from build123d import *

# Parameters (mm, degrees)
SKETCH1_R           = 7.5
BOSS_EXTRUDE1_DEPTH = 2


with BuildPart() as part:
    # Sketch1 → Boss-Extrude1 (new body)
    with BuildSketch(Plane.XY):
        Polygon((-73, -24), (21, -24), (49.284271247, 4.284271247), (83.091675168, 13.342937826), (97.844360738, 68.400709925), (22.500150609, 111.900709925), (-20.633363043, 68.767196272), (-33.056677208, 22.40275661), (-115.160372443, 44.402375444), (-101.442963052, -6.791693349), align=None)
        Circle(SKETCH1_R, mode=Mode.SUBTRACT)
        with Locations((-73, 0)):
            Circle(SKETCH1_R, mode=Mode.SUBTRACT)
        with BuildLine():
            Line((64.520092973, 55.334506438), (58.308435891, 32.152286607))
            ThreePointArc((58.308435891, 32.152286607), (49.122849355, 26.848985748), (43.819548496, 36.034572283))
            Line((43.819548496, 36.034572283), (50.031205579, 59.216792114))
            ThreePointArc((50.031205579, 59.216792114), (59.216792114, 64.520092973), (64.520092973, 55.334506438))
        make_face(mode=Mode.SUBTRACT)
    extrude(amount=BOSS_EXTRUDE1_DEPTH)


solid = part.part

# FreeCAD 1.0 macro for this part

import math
import FreeCAD as App
import Part
import Sketcher

V = App.Vector
Q = App.Units.Quantity


def add_polygon(sketch, points):
    """Adds a closed chain of lines whose ends are joined by coincident constraints."""
    first, n = sketch.GeometryCount, len(points)
    for a, b in zip(points, points[1:] + points[:1]):
        sketch.addGeometry(Part.LineSegment(App.Vector(*a, 0), App.Vector(*b, 0)), False)
    for i in range(n):
        sketch.addConstraint(Sketcher.Constraint("Coincident", first + i, 2, first + (i + 1) % n, 1))

doc = App.newDocument("Part")
body = doc.addObject("PartDesign::Body", "Body")

sketch1 = body.newObject("Sketcher::SketchObject", "Sketch")
sketch1.AttachmentSupport = (doc.getObject("XY_Plane"), [""])
sketch1.MapMode = "FlatFace"
add_polygon(sketch1, [(-73, -24), (21, -24), (49, 4), (83, 13), (98, 68), (23, 112), (-21, 69), (-33, 22), (-115, 44), (-101, -7)])
sketch1.addGeometry(Part.Circle(V(-73, 0, 0), V(0, 0, 1), 8), False)
sketch1.addGeometry(Part.Circle(V(0, 0, 0), V(0, 0, 1), 8), False)
sketch1.addGeometry(Part.ArcOfCircle(Part.Circle(V(57, 57, 0), V(0, 0, 1), 8), math.radians(-15), math.radians(165)), False)
sketch1.addGeometry(Part.LineSegment(V(65, 55, 0), V(58, 32, 0)), False)
sketch1.addGeometry(Part.ArcOfCircle(Part.Circle(V(51, 34, 0), V(0, 0, 1), 8), math.radians(165), math.radians(345)), False)
sketch1.addGeometry(Part.LineSegment(V(44, 36, 0), V(50, 59, 0)), False)
sketch1.addConstraint(Sketcher.Constraint("Tangent", 12, 1, 13, 1))
sketch1.addConstraint(Sketcher.Constraint("Tangent", 13, 2, 14, 2))
sketch1.addConstraint(Sketcher.Constraint("Tangent", 14, 1, 15, 1))
sketch1.addConstraint(Sketcher.Constraint("Tangent", 15, 2, 12, 2))
sketch1.addConstraint(Sketcher.Constraint("Horizontal", 0))
sketch1.addConstraint(Sketcher.Constraint("Coincident", 11, 3, -1, 1))
sketch1.addConstraint(Sketcher.Constraint("Equal", 10, 11))
sketch1.addConstraint(Sketcher.Constraint("Equal", 11, 12))
sketch1.addConstraint(Sketcher.Constraint("Equal", 12, 14))
sketch1.addConstraint(Sketcher.Constraint("PointOnObject", 10, 3, -1))
sketch1.addConstraint(Sketcher.Constraint("Parallel", 1, 5))
sketch1.addConstraint(Sketcher.Constraint("Parallel", 3, 6))
sketch1.addConstraint(Sketcher.Constraint("Perpendicular", 6, 7))
sketch1.addConstraint(Sketcher.Constraint("Perpendicular", 2, 8))
sketch1.addConstraint(Sketcher.Constraint("Perpendicular", 7, 13))
sketch1.addConstraint(Sketcher.Constraint("Vertical", 10, 3, 9, 2))
sketch1.addConstraint(Sketcher.Constraint("Diameter", 10, Q("15 mm")))
sketch1.addConstraint(Sketcher.Constraint("DistanceX", 0, 1, 0, 2, Q("94 mm")))
sketch1.addConstraint(Sketcher.Constraint("Angle", 1, Q("45 deg")))
sketch1.addConstraint(Sketcher.Constraint("Angle", 2, Q("15 deg")))
sketch1.addConstraint(Sketcher.Constraint("Angle", 3, Q("75 deg")))
sketch1.addConstraint(Sketcher.Constraint("Angle", 4, Q("150 deg")))
sketch1.addConstraint(Sketcher.Constraint("Distance", 1, Q("40 mm")))
sketch1.addConstraint(Sketcher.Constraint("Distance", 2, Q("35 mm")))
sketch1.addConstraint(Sketcher.Constraint("Distance", 3, Q("57 mm")))
sketch1.addConstraint(Sketcher.Constraint("Distance", 4, Q("87 mm")))
sketch1.addConstraint(Sketcher.Constraint("Distance", 5, Q("61 mm")))
sketch1.addConstraint(Sketcher.Constraint("Distance", 6, Q("48 mm")))
sketch1.addConstraint(Sketcher.Constraint("Distance", 7, Q("85 mm")))
sketch1.addConstraint(Sketcher.Constraint("Distance", 8, Q("53 mm")))
sketch1.addConstraint(Sketcher.Constraint("Distance", 13, Q("24 mm")))
sketch1.addConstraint(Sketcher.Constraint("DistanceX", 10, 3, -1, 1, Q("73 mm")))
sketch1.addConstraint(Sketcher.Constraint("DistanceY", 0, 2, -1, 1, Q("24 mm")))
sketch1.addConstraint(Sketcher.Constraint("DistanceX", 4, 2, 12, 3, Q("34.775499 mm")))
sketch1.addConstraint(Sketcher.Constraint("DistanceY", 1, 2, 14, 1, Q("31.750301 mm")))
pad1 = body.newObject("PartDesign::Pad", "Pad")
pad1.Profile = sketch1
pad1.Length = 2

doc.recompute()
